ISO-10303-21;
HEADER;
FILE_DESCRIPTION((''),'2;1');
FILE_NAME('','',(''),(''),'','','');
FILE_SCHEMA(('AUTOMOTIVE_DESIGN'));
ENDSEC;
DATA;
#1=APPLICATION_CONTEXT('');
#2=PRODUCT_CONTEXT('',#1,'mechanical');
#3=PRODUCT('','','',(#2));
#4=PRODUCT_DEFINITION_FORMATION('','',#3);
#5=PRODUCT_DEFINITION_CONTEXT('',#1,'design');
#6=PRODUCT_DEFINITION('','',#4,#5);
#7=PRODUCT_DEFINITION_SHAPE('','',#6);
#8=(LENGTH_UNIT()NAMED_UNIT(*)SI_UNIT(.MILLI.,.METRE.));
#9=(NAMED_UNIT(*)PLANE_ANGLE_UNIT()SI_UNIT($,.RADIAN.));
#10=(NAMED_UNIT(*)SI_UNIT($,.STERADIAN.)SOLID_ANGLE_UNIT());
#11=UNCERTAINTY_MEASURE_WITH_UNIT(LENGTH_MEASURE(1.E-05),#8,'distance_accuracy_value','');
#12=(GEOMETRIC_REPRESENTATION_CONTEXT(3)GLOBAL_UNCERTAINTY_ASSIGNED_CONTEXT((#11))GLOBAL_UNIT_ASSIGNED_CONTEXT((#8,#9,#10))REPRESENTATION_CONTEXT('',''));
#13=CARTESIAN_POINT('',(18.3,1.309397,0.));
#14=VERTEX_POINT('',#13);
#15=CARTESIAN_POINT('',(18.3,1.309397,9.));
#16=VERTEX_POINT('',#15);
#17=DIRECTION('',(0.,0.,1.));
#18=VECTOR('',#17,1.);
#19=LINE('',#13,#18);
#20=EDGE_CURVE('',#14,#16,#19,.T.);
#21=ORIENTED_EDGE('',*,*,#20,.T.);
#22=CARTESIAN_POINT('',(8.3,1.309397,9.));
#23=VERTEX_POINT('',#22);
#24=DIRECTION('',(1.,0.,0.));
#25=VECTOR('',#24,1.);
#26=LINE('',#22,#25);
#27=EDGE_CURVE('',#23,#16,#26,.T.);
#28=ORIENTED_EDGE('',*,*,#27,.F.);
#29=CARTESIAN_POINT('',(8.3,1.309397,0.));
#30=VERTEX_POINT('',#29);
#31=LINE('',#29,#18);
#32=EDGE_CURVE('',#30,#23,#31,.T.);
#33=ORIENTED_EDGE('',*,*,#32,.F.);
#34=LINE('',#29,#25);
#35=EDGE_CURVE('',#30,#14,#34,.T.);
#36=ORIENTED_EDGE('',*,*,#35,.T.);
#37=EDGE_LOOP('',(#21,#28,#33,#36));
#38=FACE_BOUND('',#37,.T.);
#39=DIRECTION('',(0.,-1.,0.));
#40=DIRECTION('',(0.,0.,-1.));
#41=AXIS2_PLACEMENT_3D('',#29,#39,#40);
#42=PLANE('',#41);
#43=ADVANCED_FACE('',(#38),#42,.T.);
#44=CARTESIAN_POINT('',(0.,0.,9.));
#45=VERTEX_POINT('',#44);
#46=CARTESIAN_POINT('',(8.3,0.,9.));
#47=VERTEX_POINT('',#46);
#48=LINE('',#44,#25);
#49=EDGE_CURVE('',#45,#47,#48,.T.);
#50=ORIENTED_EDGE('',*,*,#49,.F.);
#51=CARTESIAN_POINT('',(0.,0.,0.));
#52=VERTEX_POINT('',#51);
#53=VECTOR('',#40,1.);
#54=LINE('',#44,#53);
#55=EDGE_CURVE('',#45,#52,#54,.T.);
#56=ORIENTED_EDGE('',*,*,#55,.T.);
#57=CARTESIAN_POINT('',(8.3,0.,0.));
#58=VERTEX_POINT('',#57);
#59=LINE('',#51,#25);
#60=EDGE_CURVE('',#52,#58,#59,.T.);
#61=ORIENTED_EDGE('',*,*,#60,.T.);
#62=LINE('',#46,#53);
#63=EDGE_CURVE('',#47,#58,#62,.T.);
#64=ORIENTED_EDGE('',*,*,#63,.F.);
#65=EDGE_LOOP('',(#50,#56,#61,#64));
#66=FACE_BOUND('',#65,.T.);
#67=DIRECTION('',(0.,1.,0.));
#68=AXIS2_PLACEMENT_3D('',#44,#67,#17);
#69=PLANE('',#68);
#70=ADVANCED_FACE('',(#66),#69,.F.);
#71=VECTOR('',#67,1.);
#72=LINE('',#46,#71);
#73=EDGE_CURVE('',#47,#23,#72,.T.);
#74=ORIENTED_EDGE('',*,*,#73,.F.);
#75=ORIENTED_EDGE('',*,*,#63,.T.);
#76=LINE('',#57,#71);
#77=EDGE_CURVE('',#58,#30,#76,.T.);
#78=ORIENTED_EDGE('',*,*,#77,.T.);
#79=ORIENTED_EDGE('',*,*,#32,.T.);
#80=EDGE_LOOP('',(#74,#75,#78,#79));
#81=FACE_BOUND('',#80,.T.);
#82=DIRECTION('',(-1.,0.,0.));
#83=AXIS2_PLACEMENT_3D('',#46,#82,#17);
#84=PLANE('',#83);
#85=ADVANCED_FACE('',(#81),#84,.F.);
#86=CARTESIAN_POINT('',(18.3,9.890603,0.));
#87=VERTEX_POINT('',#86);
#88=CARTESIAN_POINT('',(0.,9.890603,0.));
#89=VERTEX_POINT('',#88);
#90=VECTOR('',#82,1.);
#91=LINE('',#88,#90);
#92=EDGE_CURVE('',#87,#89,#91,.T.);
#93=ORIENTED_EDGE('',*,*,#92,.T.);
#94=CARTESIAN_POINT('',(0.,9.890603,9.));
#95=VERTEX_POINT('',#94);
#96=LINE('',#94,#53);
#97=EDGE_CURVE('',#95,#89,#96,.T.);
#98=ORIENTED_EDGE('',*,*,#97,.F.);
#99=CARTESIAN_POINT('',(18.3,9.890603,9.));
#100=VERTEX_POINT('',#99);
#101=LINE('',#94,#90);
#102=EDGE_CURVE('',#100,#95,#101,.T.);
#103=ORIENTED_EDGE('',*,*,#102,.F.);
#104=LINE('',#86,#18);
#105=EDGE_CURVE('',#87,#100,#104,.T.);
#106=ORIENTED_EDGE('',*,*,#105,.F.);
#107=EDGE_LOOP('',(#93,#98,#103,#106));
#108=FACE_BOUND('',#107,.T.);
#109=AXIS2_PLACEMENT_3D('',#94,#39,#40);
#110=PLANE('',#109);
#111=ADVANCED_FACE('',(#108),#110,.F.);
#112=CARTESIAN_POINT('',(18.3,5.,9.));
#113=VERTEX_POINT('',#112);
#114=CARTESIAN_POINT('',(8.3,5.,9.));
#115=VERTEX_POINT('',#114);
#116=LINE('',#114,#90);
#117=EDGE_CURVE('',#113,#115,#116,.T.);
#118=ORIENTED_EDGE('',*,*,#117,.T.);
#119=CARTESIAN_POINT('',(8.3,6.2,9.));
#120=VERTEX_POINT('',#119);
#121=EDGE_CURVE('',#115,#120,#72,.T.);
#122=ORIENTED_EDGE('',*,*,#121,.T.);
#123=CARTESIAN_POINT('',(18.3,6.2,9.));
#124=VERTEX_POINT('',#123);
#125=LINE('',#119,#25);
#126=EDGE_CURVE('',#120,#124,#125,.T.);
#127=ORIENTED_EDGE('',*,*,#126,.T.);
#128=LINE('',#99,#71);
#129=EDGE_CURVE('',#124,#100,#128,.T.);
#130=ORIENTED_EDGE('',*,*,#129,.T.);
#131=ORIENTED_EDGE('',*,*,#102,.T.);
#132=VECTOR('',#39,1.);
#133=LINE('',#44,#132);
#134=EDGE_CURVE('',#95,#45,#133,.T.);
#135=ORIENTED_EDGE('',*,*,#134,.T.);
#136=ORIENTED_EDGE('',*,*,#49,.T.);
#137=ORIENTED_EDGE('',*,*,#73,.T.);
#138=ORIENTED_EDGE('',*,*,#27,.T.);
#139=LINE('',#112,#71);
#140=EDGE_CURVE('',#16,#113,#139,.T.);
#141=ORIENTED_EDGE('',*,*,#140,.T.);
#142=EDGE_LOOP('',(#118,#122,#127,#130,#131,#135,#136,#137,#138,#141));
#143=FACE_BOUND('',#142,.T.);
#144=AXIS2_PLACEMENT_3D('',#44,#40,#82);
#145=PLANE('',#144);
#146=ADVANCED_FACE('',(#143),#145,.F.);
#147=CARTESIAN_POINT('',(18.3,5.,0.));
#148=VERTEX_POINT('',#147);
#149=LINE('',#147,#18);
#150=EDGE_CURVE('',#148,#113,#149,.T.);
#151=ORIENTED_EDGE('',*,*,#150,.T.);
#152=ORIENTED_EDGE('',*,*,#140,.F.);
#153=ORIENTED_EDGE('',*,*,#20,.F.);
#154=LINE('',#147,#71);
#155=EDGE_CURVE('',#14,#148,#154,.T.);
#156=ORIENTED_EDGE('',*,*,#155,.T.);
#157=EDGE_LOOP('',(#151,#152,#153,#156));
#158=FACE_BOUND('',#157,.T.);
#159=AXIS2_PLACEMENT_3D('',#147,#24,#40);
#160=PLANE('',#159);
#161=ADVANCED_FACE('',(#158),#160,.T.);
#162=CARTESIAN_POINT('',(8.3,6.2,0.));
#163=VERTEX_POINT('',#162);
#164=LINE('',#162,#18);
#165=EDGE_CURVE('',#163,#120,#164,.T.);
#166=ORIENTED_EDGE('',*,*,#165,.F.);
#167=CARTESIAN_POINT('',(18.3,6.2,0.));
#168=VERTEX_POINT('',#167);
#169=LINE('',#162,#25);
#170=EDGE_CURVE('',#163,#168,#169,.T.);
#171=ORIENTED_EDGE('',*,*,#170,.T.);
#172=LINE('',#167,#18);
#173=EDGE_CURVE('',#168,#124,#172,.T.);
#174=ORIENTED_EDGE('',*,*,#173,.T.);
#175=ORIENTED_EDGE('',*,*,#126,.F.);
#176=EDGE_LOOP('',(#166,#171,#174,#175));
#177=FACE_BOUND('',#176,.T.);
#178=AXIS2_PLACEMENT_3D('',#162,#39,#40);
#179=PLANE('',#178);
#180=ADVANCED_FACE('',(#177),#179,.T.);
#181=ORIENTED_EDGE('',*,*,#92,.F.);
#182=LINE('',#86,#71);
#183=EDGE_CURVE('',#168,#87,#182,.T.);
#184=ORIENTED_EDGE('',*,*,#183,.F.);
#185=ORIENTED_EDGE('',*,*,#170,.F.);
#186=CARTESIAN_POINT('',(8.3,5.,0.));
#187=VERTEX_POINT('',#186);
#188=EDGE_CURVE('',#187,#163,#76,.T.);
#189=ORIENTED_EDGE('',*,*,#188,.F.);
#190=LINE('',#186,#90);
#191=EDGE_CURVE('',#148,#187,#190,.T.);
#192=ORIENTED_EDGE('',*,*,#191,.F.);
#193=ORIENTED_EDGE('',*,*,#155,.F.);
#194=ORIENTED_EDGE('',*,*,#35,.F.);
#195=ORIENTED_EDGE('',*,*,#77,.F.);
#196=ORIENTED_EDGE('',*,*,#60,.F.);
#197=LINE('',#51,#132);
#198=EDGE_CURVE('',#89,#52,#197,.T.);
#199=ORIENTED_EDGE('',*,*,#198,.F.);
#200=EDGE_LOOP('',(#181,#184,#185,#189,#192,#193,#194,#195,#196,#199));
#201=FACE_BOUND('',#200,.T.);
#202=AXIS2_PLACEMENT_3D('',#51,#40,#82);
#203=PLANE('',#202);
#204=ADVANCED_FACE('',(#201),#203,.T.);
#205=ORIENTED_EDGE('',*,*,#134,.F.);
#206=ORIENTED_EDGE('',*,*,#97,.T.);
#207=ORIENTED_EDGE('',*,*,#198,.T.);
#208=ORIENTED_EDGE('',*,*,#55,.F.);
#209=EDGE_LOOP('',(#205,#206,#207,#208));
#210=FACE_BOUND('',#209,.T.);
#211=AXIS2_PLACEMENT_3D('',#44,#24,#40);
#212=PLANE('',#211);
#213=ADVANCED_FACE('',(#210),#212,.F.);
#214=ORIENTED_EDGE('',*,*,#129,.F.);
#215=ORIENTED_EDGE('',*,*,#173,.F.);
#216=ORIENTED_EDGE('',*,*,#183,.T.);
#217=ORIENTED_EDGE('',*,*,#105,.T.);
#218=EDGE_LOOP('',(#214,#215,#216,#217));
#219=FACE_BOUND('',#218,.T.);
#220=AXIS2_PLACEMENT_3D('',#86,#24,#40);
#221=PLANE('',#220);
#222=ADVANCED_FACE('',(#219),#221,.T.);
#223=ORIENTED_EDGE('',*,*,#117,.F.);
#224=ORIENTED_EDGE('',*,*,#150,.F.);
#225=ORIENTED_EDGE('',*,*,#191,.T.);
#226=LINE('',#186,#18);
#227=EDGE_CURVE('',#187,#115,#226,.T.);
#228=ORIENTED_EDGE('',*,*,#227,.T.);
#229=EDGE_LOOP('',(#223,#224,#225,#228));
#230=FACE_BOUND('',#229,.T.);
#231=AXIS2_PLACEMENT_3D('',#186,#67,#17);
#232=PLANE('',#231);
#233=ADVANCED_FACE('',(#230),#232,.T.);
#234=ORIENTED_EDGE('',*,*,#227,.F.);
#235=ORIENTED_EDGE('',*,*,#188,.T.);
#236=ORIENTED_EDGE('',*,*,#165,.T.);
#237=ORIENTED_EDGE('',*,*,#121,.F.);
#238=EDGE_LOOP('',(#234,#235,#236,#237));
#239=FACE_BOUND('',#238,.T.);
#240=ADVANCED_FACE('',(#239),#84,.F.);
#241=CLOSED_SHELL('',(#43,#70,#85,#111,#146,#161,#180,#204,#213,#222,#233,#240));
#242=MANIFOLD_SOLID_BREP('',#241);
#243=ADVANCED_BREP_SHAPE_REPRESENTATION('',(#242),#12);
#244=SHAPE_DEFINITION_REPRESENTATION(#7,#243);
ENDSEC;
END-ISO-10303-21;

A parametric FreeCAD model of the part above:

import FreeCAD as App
import Part
import Sketcher
Q = App.Units.Quantity


def add_polygon(sketch, points):
    """Adds a closed chain of lines whose ends are joined by coincident constraints."""
    first, n = sketch.GeometryCount, len(points)
    for a, b in zip(points, points[1:] + points[:1]):
        sketch.addGeometry(Part.LineSegment(App.Vector(*a, 0), App.Vector(*b, 0)), False)
    for i in range(n):
        sketch.addConstraint(Sketcher.Constraint("Coincident", first + i, 2, first + (i + 1) % n, 1))

doc = App.newDocument("Part")
body = doc.addObject("PartDesign::Body", "Body")

sketch1 = body.newObject("Sketcher::SketchObject", "Sketch")
sketch1.AttachmentSupport = (doc.getObject("XY_Plane"), [""])
sketch1.MapMode = "FlatFace"
add_polygon(sketch1, [(0, 10), (0, 0), (8, 0), (8, 10)])
sketch1.addConstraint([
    Sketcher.Constraint("Vertical", 0),
    Sketcher.Constraint("Horizontal", 1),
    Sketcher.Constraint("Vertical", 2),
    Sketcher.Constraint("Horizontal", 3),
    Sketcher.Constraint("Coincident", 0, 2, -1, 1),
    Sketcher.Constraint("DistanceX", 1, 1, 1, 2, Q("8.3 mm")),
    Sketcher.Constraint("DistanceY", 0, 2, 0, 1, Q("9.890603 mm")),
])
pad1 = body.newObject("PartDesign::Pad", "Pad")
pad1.Profile = sketch1
pad1.Length = 9

sketch2 = body.newObject("Sketcher::SketchObject", "Sketch001")
sketch2.AttachmentSupport = (doc.getObject("XY_Plane"), [""])
sketch2.MapMode = "FlatFace"
sketch2.AttachmentOffset = App.Placement(App.Vector(0, 0, 9), App.Rotation())
add_polygon(sketch2, [(8.3, 9.9), (8.3, 6.2), (18.3, 6.2), (18.3, 9.9)])
add_polygon(sketch2, [(8.3, 5), (8.3, 1.3), (18.3, 1.3), (18.3, 5)])
sketch2.addConstraint([
    Sketcher.Constraint("Vertical", 0),
    Sketcher.Constraint("Horizontal", 1),
    Sketcher.Constraint("Vertical", 2),
    Sketcher.Constraint("Horizontal", 3),
    Sketcher.Constraint("Vertical", 4),
    Sketcher.Constraint("Horizontal", 5),
    Sketcher.Constraint("Vertical", 6),
    Sketcher.Constraint("Horizontal", 7),
    Sketcher.Constraint("Vertical", 3, 2, 4, 2),
    Sketcher.Constraint("Vertical", 2, 2, 5, 2),
    Sketcher.Constraint("Equal", 2, 4),
    Sketcher.Constraint("DistanceX", 1, 1, 1, 2, Q("10 mm")),
    Sketcher.Constraint("DistanceY", -1, 1, 6, 2, Q("5 mm")),
    Sketcher.Constraint("DistanceX", -1, 1, 0, 2, Q("8.3 mm")),
    Sketcher.Constraint("DistanceY", -1, 1, 0, 2, Q("6.2 mm")),
    Sketcher.Constraint("DistanceY", 0, 2, 0, 1, Q("3.690603 mm")),
])
pad2 = body.newObject("PartDesign::Pad", "Pad001")
pad2.Profile = sketch2
pad2.Length = 9
pad2.Reversed = True

doc.recompute()
